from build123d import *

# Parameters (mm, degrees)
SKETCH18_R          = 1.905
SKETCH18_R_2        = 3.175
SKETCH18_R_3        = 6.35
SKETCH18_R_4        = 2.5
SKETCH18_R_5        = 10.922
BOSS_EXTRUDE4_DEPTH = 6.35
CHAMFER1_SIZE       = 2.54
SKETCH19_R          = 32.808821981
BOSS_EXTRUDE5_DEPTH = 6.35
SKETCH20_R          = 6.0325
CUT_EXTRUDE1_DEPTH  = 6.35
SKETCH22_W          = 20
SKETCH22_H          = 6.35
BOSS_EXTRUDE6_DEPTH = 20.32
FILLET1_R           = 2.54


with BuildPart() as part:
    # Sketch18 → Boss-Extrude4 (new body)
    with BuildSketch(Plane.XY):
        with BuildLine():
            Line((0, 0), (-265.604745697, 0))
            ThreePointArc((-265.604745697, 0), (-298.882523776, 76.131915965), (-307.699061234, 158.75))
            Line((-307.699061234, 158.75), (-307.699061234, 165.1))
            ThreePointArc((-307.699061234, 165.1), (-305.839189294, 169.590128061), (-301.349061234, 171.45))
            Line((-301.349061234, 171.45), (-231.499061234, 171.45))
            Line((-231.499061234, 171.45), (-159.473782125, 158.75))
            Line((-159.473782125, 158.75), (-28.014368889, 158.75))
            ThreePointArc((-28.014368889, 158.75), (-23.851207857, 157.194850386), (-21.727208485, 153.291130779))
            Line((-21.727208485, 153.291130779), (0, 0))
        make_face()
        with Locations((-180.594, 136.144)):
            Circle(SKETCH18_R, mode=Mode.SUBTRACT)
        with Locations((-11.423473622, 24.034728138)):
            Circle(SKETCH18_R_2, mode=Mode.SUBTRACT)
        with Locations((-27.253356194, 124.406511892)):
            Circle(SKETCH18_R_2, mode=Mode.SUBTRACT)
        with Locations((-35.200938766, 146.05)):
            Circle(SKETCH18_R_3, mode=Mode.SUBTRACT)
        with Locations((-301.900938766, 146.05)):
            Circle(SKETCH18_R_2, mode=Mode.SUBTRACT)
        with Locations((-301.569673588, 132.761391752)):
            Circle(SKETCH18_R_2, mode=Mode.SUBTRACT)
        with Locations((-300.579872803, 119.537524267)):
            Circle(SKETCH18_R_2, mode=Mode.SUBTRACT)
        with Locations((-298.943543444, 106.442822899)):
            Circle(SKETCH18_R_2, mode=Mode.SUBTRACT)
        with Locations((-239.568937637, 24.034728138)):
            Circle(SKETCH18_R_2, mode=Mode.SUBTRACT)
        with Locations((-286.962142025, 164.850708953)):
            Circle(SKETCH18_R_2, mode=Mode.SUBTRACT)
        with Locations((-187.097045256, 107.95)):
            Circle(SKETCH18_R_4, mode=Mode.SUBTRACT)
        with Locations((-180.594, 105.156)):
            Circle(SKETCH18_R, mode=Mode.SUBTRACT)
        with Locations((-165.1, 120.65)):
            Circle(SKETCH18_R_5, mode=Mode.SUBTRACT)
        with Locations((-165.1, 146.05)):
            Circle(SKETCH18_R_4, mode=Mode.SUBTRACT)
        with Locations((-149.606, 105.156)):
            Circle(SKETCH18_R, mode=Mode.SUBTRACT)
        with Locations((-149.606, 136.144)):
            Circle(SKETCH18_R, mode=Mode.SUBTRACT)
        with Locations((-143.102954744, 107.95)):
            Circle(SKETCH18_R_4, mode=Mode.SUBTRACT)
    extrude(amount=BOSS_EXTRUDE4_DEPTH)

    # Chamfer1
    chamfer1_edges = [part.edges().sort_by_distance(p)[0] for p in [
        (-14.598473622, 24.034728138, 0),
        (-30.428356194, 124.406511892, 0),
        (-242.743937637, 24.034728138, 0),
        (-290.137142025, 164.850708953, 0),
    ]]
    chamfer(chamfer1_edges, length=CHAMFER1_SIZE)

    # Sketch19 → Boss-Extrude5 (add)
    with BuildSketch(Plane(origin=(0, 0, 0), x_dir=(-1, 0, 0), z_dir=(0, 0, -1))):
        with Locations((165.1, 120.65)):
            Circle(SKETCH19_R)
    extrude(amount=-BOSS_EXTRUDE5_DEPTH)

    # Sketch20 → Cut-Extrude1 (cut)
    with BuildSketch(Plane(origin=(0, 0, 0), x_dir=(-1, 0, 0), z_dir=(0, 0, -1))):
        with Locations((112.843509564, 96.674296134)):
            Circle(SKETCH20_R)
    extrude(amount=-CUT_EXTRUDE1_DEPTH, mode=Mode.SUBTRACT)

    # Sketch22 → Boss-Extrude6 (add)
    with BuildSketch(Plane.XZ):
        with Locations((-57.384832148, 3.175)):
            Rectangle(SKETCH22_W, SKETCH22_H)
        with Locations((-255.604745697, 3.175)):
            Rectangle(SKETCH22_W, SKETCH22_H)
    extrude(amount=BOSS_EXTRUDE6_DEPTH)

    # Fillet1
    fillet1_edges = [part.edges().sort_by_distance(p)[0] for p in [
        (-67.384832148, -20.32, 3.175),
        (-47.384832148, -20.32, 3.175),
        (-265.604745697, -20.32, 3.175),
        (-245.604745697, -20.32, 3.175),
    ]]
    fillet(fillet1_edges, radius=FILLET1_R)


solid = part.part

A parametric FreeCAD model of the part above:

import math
import FreeCAD as App
import Part
import Sketcher
Q = App.Units.Quantity


def edges_at(feature, points):
    """Names of the edges that pass closest to the given points."""
    edges = feature.Shape.Edges
    near = lambda p: min(range(len(edges)), key=lambda i: edges[i].distToShape(Part.Vertex(*p))[0])
    return sorted({f"Edge{near(p) + 1}" for p in points})


def add_polygon(sketch, points):
    """Adds a closed chain of lines whose ends are joined by coincident constraints."""
    first, n = sketch.GeometryCount, len(points)
    for a, b in zip(points, points[1:] + points[:1]):
        sketch.addGeometry(Part.LineSegment(App.Vector(*a, 0), App.Vector(*b, 0)), False)
    for i in range(n):
        sketch.addConstraint(Sketcher.Constraint("Coincident", first + i, 2, first + (i + 1) % n, 1))

doc = App.newDocument("Part")
body = doc.addObject("PartDesign::Body", "Body")

# Sketch on XY plane
sketch1 = doc.addObject("Sketcher::SketchObject", "Sketch")
body.addObject(sketch1)
sketch1.AttachmentSupport = (doc.XY_Plane, [""])
sketch1.MapMode = "FlatFace"
sketch1.addGeometry(Part.LineSegment(App.Vector(-265.604746, 0, 0), App.Vector(0, 0, 0)), False)
sketch1.addGeometry(Part.LineSegment(App.Vector(0, 0, 0), App.Vector(-21.727208, 153.291131, 0)), False)
sketch1.addGeometry(Part.ArcOfCircle(Part.Circle(App.Vector(-28.014369, 152.4, 0), App.Vector(0, 0, 1), 6.35), math.radians(8.067264), math.radians(90)), False)
sketch1.addGeometry(Part.LineSegment(App.Vector(-28.014369, 158.75, 0), App.Vector(-159.473782, 158.75, 0)), False)
sketch1.addGeometry(Part.LineSegment(App.Vector(-159.473782, 158.75, 0), App.Vector(-231.499061, 171.45, 0)), False)
sketch1.addGeometry(Part.LineSegment(App.Vector(-231.499061, 171.45, 0), App.Vector(-301.349061, 171.45, 0)), False)
sketch1.addGeometry(Part.ArcOfCircle(Part.Circle(App.Vector(-301.349061, 165.1, 0), App.Vector(0, 0, 1), 6.35), math.radians(90), math.radians(180)), False)
sketch1.addGeometry(Part.LineSegment(App.Vector(-307.699061, 165.1, 0), App.Vector(-307.699061, 158.75, 0)), False)
sketch1.addGeometry(Part.ArcOfCircle(Part.Circle(App.Vector(-35.200939, 146.05, 0), App.Vector(0, 0, 1), 272.793909), math.radians(177.331614), math.radians(212.370083)), False)
sketch1.addGeometry(Part.Circle(App.Vector(-11.423474, 24.034728, 0), App.Vector(0, 0, 1), 3.175), False)
sketch1.addGeometry(Part.Circle(App.Vector(-239.568938, 24.034728, 0), App.Vector(0, 0, 1), 3.175), False)
sketch1.addGeometry(Part.Circle(App.Vector(-27.253356, 124.406512, 0), App.Vector(0, 0, 1), 3.175), False)
sketch1.addGeometry(Part.Circle(App.Vector(-143.102955, 107.95, 0), App.Vector(0, 0, 1), 2.5), False)
sketch1.addGeometry(Part.Circle(App.Vector(-149.606, 105.156, 0), App.Vector(0, 0, 1), 1.905), False)
sketch1.addGeometry(Part.Circle(App.Vector(-35.200939, 146.05, 0), App.Vector(0, 0, 1), 6.35), False)
sketch1.addGeometry(Part.Circle(App.Vector(-149.606, 136.144, 0), App.Vector(0, 0, 1), 1.905), False)
sketch1.addGeometry(Part.Circle(App.Vector(-180.594, 105.156, 0), App.Vector(0, 0, 1), 1.905), False)
sketch1.addGeometry(Part.Circle(App.Vector(-187.097045, 107.95, 0), App.Vector(0, 0, 1), 2.5), False)
sketch1.addGeometry(Part.Circle(App.Vector(-165.1, 120.65, 0), App.Vector(0, 0, 1), 10.922), False)
sketch1.addGeometry(Part.Circle(App.Vector(-298.943543, 106.442823, 0), App.Vector(0, 0, 1), 3.175), False)
sketch1.addGeometry(Part.Circle(App.Vector(-300.579873, 119.537524, 0), App.Vector(0, 0, 1), 3.175), False)
sketch1.addGeometry(Part.Circle(App.Vector(-180.594, 136.144, 0), App.Vector(0, 0, 1), 1.905), False)
sketch1.addGeometry(Part.Circle(App.Vector(-165.1, 146.05, 0), App.Vector(0, 0, 1), 2.5), False)
sketch1.addGeometry(Part.Circle(App.Vector(-301.569674, 132.761392, 0), App.Vector(0, 0, 1), 3.175), False)
sketch1.addGeometry(Part.Circle(App.Vector(-301.900939, 146.05, 0), App.Vector(0, 0, 1), 3.175), False)
sketch1.addGeometry(Part.Circle(App.Vector(-286.962142, 164.850709, 0), App.Vector(0, 0, 1), 3.175), False)
sketch1.addConstraint(Sketcher.Constraint("Coincident", 0, 2, 1, 1))
sketch1.addConstraint(Sketcher.Constraint("Tangent", 1, 2, 2, 1))
sketch1.addConstraint(Sketcher.Constraint("Tangent", 2, 2, 3, 1))
sketch1.addConstraint(Sketcher.Constraint("Coincident", 3, 2, 4, 1))
sketch1.addConstraint(Sketcher.Constraint("Coincident", 4, 2, 5, 1))
sketch1.addConstraint(Sketcher.Constraint("Tangent", 5, 2, 6, 1))
sketch1.addConstraint(Sketcher.Constraint("Tangent", 6, 2, 7, 1))
sketch1.addConstraint(Sketcher.Constraint("Coincident", 7, 2, 8, 1))
sketch1.addConstraint(Sketcher.Constraint("Coincident", 8, 2, 0, 1))
sketch1.addConstraint(Sketcher.Constraint("Horizontal", 0))
sketch1.addConstraint(Sketcher.Constraint("Horizontal", 3))
sketch1.addConstraint(Sketcher.Constraint("Horizontal", 5))
sketch1.addConstraint(Sketcher.Constraint("Vertical", 7))
sketch1.addConstraint(Sketcher.Constraint("Coincident", 0, 2, -1, 1))
sketch1.addConstraint(Sketcher.Constraint("Coincident", 14, 3, 8, 3))
sketch1.addConstraint(Sketcher.Constraint("Equal", 2, 6))
sketch1.addConstraint(Sketcher.Constraint("Equal", 9, 10))
sketch1.addConstraint(Sketcher.Constraint("Equal", 10, 11))
sketch1.addConstraint(Sketcher.Constraint("Equal", 6, 14))
sketch1.addConstraint(Sketcher.Constraint("Equal", 13, 15))
sketch1.addConstraint(Sketcher.Constraint("Equal", 15, 16))
sketch1.addConstraint(Sketcher.Constraint("Equal", 12, 17))
sketch1.addConstraint(Sketcher.Constraint("Equal", 11, 19))
sketch1.addConstraint(Sketcher.Constraint("Equal", 19, 20))
sketch1.addConstraint(Sketcher.Constraint("Equal", 16, 21))
sketch1.addConstraint(Sketcher.Constraint("Equal", 17, 22))
sketch1.addConstraint(Sketcher.Constraint("Equal", 20, 23))
sketch1.addConstraint(Sketcher.Constraint("Equal", 23, 24))
sketch1.addConstraint(Sketcher.Constraint("Equal", 24, 25))
sketch1.addConstraint(Sketcher.Constraint("Horizontal", 9, 3, 10, 3))
sketch1.addConstraint(Sketcher.Constraint("Horizontal", 13, 3, 16, 3))
sketch1.addConstraint(Sketcher.Constraint("Horizontal", 12, 3, 17, 3))
sketch1.addConstraint(Sketcher.Constraint("Horizontal", 15, 3, 21, 3))
sketch1.addConstraint(Sketcher.Constraint("Horizontal", 14, 3, 22, 3))
sketch1.addConstraint(Sketcher.Constraint("Horizontal", 22, 3, 24, 3))
sketch1.addConstraint(Sketcher.Constraint("Horizontal", 3, 2, 7, 2))
sketch1.addConstraint(Sketcher.Constraint("Vertical", 13, 3, 15, 3))
sketch1.addConstraint(Sketcher.Constraint("Vertical", 16, 3, 21, 3))
sketch1.addConstraint(Sketcher.Constraint("Vertical", 18, 3, 22, 3))
sketch1.addConstraint(Sketcher.Constraint("Diameter", 14, Q("0.5 in")))
sketch1.addConstraint(Sketcher.Constraint("Diameter", 9, Q("0.25 in")))
sketch1.addConstraint(Sketcher.Constraint("Diameter", 13, Q("0.15 in")))
sketch1.addConstraint(Sketcher.Constraint("Diameter", 18, Q("0.86 in")))
sketch1.addConstraint(Sketcher.Constraint("DistanceY", -1, 1, 2, 3, Q("6 in")))
sketch1.addConstraint(Sketcher.Constraint("Angle", 4, Q("170 deg")))
sketch1.addConstraint(Sketcher.Constraint("DistanceY", 18, 3, 22, 3, Q("1 in")))
sketch1.addConstraint(Sketcher.Constraint("DistanceY", 12, 3, 3, 2, Q("2 in")))
sketch1.addConstraint(Sketcher.Constraint("DistanceY", 22, 3, 4, 2, Q("1 in")))
sketch1.addConstraint(Sketcher.Constraint("DistanceX", 5, 2, 5, 1, Q("2.75 in")))
sketch1.addConstraint(Sketcher.Constraint("DistanceY", 7, 2, 7, 1, Q("0.25 in")))
sketch1.addConstraint(Sketcher.Constraint("DistanceX", 18, 3, -1, 1, Q("6.5 in")))
sketch1.addConstraint(Sketcher.Constraint("Diameter", 12, Q("5 mm")))
sketch1.addConstraint(Sketcher.Constraint("DistanceX", 13, 3, -1, 1, Q("5.89 in")))
sketch1.addConstraint(Sketcher.Constraint("DistanceY", -1, 1, 13, 3, Q("4.14 in")))
sketch1.addConstraint(Sketcher.Constraint("DistanceY", -1, 1, 15, 3, Q("5.36 in")))
sketch1.addConstraint(Sketcher.Constraint("DistanceX", 16, 3, -1, 1, Q("7.11 in")))
sketch1.addConstraint(Sketcher.Constraint("Radius", 8, Q("272.793909 mm")))
sketch1.addConstraint(Sketcher.Constraint("DistanceX", 10, 3, 8, 3, Q("204.367999 mm")))
sketch1.addConstraint(Sketcher.Constraint("DistanceX", 12, 3, 11, 3, Q("115.849599 mm")))
sketch1.addConstraint(Sketcher.Constraint("DistanceX", 19, 3, 17, 3, Q("111.846498 mm")))
sketch1.addConstraint(Sketcher.Constraint("DistanceY", 19, 3, 20, 3, Q("13.094701 mm")))
sketch1.addConstraint(Sketcher.Constraint("DistanceX", 23, 3, 20, 3, Q("0.989801 mm")))
sketch1.addConstraint(Sketcher.Constraint("DistanceX", 19, 3, 25, 3, Q("11.981401 mm")))
sketch1.addConstraint(Sketcher.Constraint("DistanceX", 8, 2, 17, 3, Q("78.5077 mm")))
sketch1.addConstraint(Sketcher.Constraint("Distance", 1, Q("154.823262 mm")))
sketch1.addConstraint(Sketcher.Constraint("DistanceX", 0, 1, 0, 2, Q("265.604746 mm")))
sketch1.addConstraint(Sketcher.Constraint("DistanceY", -1, 1, 9, 3, Q("24.034728 mm")))
sketch1.addConstraint(Sketcher.Constraint("DistanceY", -1, 1, 11, 3, Q("124.406512 mm")))
sketch1.addConstraint(Sketcher.Constraint("DistanceY", -1, 1, 23, 3, Q("132.761392 mm")))
sketch1.addConstraint(Sketcher.Constraint("DistanceX", 24, 3, -1, 1, Q("301.900939 mm")))
sketch1.addConstraint(Sketcher.Constraint("DistanceY", -1, 1, 25, 3, Q("164.850709 mm")))
sketch1.addConstraint(Sketcher.Constraint("DistanceX", 10, 3, 11, 3, Q("212.315581 mm")))
sketch1.addConstraint(Sketcher.Constraint("DistanceX", 12, 3, 9, 3, Q("131.679481 mm")))
sketch1.addConstraint(Sketcher.Constraint("DistanceX", 20, 3, 19, 3, Q("1.636329 mm")))
sketch1.addConstraint(Sketcher.Constraint("DistanceY", 19, 3, 23, 3, Q("26.318569 mm")))
pad1 = doc.addObject("PartDesign::Pad", "Pad")
body.addObject(pad1)
pad1.Profile = sketch1
pad1.Length = Q("0.25 in")
doc.recompute()

chamfer = doc.addObject("PartDesign::Chamfer", "Chamfer")
body.addObject(chamfer)
chamfer.Base = (pad1, edges_at(pad1, [
    (-14.598, 24.035, 0),
    (-30.428, 124.407, 0),
    (-242.744, 24.035, 0),
    (-290.137, 164.851, 0),
]))
chamfer.Size = Q("0.1 in")

# Sketch on XY plane
sketch2 = doc.addObject("Sketcher::SketchObject", "Sketch001")
body.addObject(sketch2)
sketch2.AttachmentSupport = (doc.XY_Plane, [""])
sketch2.MapMode = "FlatFace"
sketch2.addGeometry(Part.Circle(App.Vector(-165.1, 120.65, 0), App.Vector(0, 0, 1), 32.808822), False)
sketch2.addConstraint(Sketcher.Constraint("DistanceX", 0, 3, -1, 1, Q("6.5 in")))
sketch2.addConstraint(Sketcher.Constraint("DistanceY", -1, 1, 0, 3, Q("4.75 in")))
sketch2.addConstraint(Sketcher.Constraint("Diameter", 0, Q("65.617644 mm")))
pad2 = doc.addObject("PartDesign::Pad", "Pad001")
body.addObject(pad2)
pad2.Profile = sketch2
pad2.Length = Q("0.25 in")

# Sketch on XY plane
sketch3 = doc.addObject("Sketcher::SketchObject", "Sketch002")
body.addObject(sketch3)
sketch3.AttachmentSupport = (doc.XY_Plane, [""])
sketch3.MapMode = "FlatFace"
sketch3.addGeometry(Part.Circle(App.Vector(-112.84351, 96.674296, 0), App.Vector(0, 0, 1), 6.0325), False)
sketch3.addConstraint(Sketcher.Constraint("Diameter", 0, Q("0.475 in")))
sketch3.addConstraint(Sketcher.Constraint("DistanceX", 0, 3, -1, 1, Q("112.84351 mm")))
sketch3.addConstraint(Sketcher.Constraint("DistanceY", -1, 1, 0, 3, Q("96.674296 mm")))
pocket1 = doc.addObject("PartDesign::Pocket", "Pocket")
body.addObject(pocket1)
pocket1.Profile = sketch3
pocket1.Length = Q("0.25 in")
pocket1.Reversed = True

# Sketch on XZ plane
sketch4 = doc.addObject("Sketcher::SketchObject", "Sketch003")
body.addObject(sketch4)
sketch4.AttachmentSupport = (doc.XZ_Plane, [""])
sketch4.MapMode = "FlatFace"
add_polygon(sketch4, [(-67.384832, 6.35), (-67.384832, 0), (-47.384832, 0), (-47.384832, 6.35)])  # lines 0-3
add_polygon(sketch4, [(-265.604746, 6.35), (-265.604746, 0), (-245.604746, 0), (-245.604746, 6.35)])  # lines 4-7
sketch4.addConstraint(Sketcher.Constraint("Vertical", 0))
sketch4.addConstraint(Sketcher.Constraint("Horizontal", 1))
sketch4.addConstraint(Sketcher.Constraint("Vertical", 2))
sketch4.addConstraint(Sketcher.Constraint("Horizontal", 3))
sketch4.addConstraint(Sketcher.Constraint("Vertical", 4))
sketch4.addConstraint(Sketcher.Constraint("Horizontal", 5))
sketch4.addConstraint(Sketcher.Constraint("Vertical", 6))
sketch4.addConstraint(Sketcher.Constraint("Horizontal", 7))
sketch4.addConstraint(Sketcher.Constraint("PointOnObject", 0, 2, -1))
sketch4.addConstraint(Sketcher.Constraint("PointOnObject", 4, 2, -1))
sketch4.addConstraint(Sketcher.Constraint("Horizontal", 3, 2, 6, 2))
sketch4.addConstraint(Sketcher.Constraint("Equal", 3, 5))
sketch4.addConstraint(Sketcher.Constraint("DistanceY", 0, 2, 0, 1, Q("0.25 in")))
sketch4.addConstraint(Sketcher.Constraint("DistanceX", 1, 1, 1, 2, Q("20 mm")))
sketch4.addConstraint(Sketcher.Constraint("DistanceX", 0, 2, -1, 1, Q("67.384832 mm")))
sketch4.addConstraint(Sketcher.Constraint("DistanceX", 4, 2, -1, 1, Q("265.604746 mm")))
pad3 = doc.addObject("PartDesign::Pad", "Pad002")
body.addObject(pad3)
pad3.Profile = sketch4
pad3.Length = Q("0.8 in")
doc.recompute()

fillet = doc.addObject("PartDesign::Fillet", "Fillet")
body.addObject(fillet)
fillet.Base = (pad3, edges_at(pad3, [
    (-67.385, -20.32, 3.175),
    (-47.385, -20.32, 3.175),
    (-265.605, -20.32, 3.175),
    (-245.605, -20.32, 3.175),
]))
fillet.Radius = Q("0.1 in")

doc.recompute()
